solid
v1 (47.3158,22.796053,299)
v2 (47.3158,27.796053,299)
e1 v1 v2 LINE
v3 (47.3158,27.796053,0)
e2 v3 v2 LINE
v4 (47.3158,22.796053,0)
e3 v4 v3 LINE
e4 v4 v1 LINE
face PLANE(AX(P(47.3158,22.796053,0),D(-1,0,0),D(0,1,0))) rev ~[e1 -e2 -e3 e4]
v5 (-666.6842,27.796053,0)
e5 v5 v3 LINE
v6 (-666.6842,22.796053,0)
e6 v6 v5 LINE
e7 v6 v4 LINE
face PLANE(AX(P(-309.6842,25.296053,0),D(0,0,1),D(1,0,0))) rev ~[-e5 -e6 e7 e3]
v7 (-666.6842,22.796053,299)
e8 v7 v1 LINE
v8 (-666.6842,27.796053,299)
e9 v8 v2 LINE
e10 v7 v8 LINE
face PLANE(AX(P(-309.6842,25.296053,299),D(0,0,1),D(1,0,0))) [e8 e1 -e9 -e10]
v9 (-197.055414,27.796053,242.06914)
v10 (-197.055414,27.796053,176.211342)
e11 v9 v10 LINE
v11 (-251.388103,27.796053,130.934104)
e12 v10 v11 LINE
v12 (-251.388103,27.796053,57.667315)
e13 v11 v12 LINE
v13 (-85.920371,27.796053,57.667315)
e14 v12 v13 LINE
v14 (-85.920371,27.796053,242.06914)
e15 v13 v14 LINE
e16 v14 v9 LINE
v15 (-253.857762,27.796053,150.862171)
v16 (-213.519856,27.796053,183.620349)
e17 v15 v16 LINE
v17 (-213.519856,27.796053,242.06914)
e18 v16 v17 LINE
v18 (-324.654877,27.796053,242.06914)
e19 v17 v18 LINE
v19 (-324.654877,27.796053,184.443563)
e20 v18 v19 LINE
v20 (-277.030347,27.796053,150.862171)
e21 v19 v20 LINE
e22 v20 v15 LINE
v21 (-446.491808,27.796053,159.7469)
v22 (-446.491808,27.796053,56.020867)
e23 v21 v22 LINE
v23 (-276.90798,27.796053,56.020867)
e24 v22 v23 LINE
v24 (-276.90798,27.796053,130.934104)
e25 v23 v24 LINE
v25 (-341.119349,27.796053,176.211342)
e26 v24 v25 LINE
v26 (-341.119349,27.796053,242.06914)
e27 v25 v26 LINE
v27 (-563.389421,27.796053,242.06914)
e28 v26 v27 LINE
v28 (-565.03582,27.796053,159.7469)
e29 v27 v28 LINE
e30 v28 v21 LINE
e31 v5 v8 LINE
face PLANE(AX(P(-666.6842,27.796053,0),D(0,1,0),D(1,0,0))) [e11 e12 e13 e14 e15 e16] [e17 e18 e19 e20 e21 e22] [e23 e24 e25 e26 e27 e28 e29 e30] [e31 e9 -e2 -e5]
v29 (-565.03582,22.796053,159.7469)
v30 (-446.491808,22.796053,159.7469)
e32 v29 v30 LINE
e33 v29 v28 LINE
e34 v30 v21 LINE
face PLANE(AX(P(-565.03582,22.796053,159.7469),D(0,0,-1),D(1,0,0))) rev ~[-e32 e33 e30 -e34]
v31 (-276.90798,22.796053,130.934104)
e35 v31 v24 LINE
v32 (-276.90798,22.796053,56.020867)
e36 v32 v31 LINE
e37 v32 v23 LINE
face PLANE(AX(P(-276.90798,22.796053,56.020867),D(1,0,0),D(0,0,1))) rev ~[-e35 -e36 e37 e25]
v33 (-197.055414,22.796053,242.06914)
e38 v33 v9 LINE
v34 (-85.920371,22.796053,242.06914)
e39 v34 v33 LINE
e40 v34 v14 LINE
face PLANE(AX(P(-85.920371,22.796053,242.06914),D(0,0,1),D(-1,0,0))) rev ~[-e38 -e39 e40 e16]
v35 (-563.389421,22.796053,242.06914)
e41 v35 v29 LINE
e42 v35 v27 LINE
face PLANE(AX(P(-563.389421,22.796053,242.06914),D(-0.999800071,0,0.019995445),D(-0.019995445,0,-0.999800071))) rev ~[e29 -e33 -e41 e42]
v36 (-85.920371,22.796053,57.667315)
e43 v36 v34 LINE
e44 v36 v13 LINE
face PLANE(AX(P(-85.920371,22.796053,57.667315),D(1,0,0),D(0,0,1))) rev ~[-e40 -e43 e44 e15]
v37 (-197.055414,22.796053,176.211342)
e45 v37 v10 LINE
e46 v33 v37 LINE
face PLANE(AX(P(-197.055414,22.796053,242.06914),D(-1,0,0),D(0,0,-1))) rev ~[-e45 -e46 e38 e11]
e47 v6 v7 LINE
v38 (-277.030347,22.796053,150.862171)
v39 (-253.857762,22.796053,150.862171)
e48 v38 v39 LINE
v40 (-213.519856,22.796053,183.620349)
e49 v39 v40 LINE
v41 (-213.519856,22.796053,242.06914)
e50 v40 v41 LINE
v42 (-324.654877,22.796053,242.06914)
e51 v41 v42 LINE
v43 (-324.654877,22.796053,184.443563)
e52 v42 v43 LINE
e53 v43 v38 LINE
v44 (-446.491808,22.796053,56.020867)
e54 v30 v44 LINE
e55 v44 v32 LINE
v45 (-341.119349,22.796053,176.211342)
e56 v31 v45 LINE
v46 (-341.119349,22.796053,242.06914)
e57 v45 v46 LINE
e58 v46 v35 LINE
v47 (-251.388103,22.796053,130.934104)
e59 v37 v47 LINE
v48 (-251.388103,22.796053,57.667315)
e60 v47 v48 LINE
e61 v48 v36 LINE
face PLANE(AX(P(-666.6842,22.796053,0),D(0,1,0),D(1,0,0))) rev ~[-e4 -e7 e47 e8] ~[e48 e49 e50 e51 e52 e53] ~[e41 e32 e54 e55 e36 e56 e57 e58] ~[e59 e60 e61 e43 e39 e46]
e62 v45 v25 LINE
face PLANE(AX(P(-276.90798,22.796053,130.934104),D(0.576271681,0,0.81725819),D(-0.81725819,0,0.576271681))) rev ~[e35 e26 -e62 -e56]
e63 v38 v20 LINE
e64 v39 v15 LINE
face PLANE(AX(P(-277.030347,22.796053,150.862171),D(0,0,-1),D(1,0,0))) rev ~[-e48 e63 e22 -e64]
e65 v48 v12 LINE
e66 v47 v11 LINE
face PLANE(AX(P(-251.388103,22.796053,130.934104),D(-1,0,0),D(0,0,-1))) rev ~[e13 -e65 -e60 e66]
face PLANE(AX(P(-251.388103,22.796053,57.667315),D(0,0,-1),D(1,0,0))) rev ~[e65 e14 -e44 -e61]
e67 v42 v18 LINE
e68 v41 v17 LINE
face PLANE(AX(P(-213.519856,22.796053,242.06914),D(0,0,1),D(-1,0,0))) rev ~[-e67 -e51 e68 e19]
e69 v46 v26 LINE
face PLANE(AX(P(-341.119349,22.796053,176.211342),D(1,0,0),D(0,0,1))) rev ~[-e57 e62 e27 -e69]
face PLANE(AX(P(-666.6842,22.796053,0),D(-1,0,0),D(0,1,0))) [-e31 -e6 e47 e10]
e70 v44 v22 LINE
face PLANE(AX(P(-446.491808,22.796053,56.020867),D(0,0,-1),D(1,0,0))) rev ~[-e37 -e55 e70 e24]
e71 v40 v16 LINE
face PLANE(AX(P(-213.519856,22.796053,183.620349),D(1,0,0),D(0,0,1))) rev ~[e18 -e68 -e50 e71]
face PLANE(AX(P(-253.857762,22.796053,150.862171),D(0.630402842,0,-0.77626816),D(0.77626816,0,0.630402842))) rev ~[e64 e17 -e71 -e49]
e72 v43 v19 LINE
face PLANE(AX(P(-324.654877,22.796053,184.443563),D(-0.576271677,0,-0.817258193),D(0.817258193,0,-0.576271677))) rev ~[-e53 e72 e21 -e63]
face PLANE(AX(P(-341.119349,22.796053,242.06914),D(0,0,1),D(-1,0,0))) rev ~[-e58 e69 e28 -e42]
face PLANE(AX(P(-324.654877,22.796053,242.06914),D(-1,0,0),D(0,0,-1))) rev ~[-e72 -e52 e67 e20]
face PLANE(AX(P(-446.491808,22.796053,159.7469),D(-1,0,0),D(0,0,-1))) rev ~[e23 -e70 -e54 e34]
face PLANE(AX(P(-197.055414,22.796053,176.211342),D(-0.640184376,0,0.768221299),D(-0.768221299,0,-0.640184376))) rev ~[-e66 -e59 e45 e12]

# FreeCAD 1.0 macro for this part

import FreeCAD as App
import Part
import Sketcher


def add_polygon(sketch, points):
    """Adds a closed chain of lines whose ends are joined by coincident constraints."""
    first, n = sketch.GeometryCount, len(points)
    for a, b in zip(points, points[1:] + points[:1]):
        sketch.addGeometry(Part.LineSegment(App.Vector(*a, 0), App.Vector(*b, 0)), False)
    for i in range(n):
        sketch.addConstraint(Sketcher.Constraint("Coincident", first + i, 2, first + (i + 1) % n, 1))

doc = App.newDocument("Part")
params = doc.addObject("Spreadsheet::Sheet", "Params")
for row, (alias, value) in enumerate([
    ("sketch1_width", "714 mm"),
    ("sketch1_height", "5 mm"),
    ("pad1_length", "299 mm"),
    ("pocket1_length", "5 mm"),
], start=1):
    params.set(f"A{row}", alias)
    params.set(f"B{row}", "=" + value)
    params.setAlias(f"B{row}", alias)

body = doc.addObject("PartDesign::Body", "Body")

sketch1 = doc.addObject("Sketcher::SketchObject", "Sketch")
body.addObject(sketch1)
sketch1.AttachmentSupport = (doc.XY_Plane, [""])
sketch1.MapMode = "FlatFace"
add_polygon(sketch1, [(-666.6842, 27.796053), (-666.6842, 22.796053), (47.3158, 22.796053), (47.3158, 27.796053)])
sketch1.addConstraint(Sketcher.Constraint("Vertical", 0))
sketch1.addConstraint(Sketcher.Constraint("Horizontal", 1))
sketch1.addConstraint(Sketcher.Constraint("Vertical", 2))
sketch1.addConstraint(Sketcher.Constraint("Horizontal", 3))
sketch1.addConstraint(Sketcher.Constraint("DistanceX", 1, 1, 1, 2, 714.0))
sketch1.addConstraint(Sketcher.Constraint("DistanceY", 0, 2, 0, 1, 5.0))
sketch1.addConstraint(Sketcher.Constraint("DistanceX", 0, 2, -1, 1, 666.6842))
sketch1.addConstraint(Sketcher.Constraint("DistanceY", -1, 1, 0, 2, 22.796053))
sketch1.setExpression("Constraints[8]", "Params.sketch1_width")
sketch1.setExpression("Constraints[9]", "Params.sketch1_height")
pad1 = doc.addObject("PartDesign::Pad", "Pad")
body.addObject(pad1)
pad1.Profile = sketch1
pad1.setExpression("Length", "Params.pad1_length")

sketch2 = doc.addObject("Sketcher::SketchObject", "Sketch001")
body.addObject(sketch2)
sketch2.AttachmentSupport = (doc.XZ_Plane, [""])
sketch2.MapMode = "FlatFace"
sketch2.AttachmentOffset = App.Placement(App.Vector(0, 0, -22.796053), App.Rotation())
add_polygon(sketch2, [(-341.119349, 242.06914), (-563.389421, 242.06914), (-565.03582, 159.7469), (-446.491808, 159.7469), (-446.491808, 56.020867), (-276.90798, 56.020867), (-276.90798, 130.934104), (-341.119349, 176.211342)])
add_polygon(sketch2, [(-213.519856, 242.06914), (-324.654877, 242.06914), (-324.654877, 184.443563), (-277.030347, 150.862171), (-253.857762, 150.862171), (-213.519856, 183.620349)])
add_polygon(sketch2, [(-85.920371, 242.06914), (-197.055414, 242.06914), (-197.055414, 176.211342), (-251.388103, 130.934104), (-251.388103, 57.667315), (-85.920371, 57.667315)])
sketch2.addConstraint(Sketcher.Constraint("Horizontal", 0))
sketch2.addConstraint(Sketcher.Constraint("Horizontal", 2))
sketch2.addConstraint(Sketcher.Constraint("Vertical", 3))
sketch2.addConstraint(Sketcher.Constraint("Horizontal", 4))
sketch2.addConstraint(Sketcher.Constraint("Vertical", 5))
sketch2.addConstraint(Sketcher.Constraint("Vertical", 7))
sketch2.addConstraint(Sketcher.Constraint("Horizontal", 8))
sketch2.addConstraint(Sketcher.Constraint("Vertical", 9))
sketch2.addConstraint(Sketcher.Constraint("Horizontal", 11))
sketch2.addConstraint(Sketcher.Constraint("Vertical", 13))
sketch2.addConstraint(Sketcher.Constraint("Horizontal", 14))
sketch2.addConstraint(Sketcher.Constraint("Vertical", 15))
sketch2.addConstraint(Sketcher.Constraint("Vertical", 17))
sketch2.addConstraint(Sketcher.Constraint("Horizontal", 18))
sketch2.addConstraint(Sketcher.Constraint("Vertical", 19))
sketch2.addConstraint(Sketcher.Constraint("Parallel", 6, 10))
sketch2.addConstraint(Sketcher.Constraint("Horizontal", 7, 2, 8, 2))
sketch2.addConstraint(Sketcher.Constraint("Horizontal", 13, 2, 14, 2))
sketch2.addConstraint(Sketcher.Constraint("Horizontal", 6, 2, 15, 2))
sketch2.addConstraint(Sketcher.Constraint("Horizontal", 5, 2, 16, 2))
sketch2.addConstraint(Sketcher.Constraint("DistanceY", 7, 1, 7, 2, 65.857798))
sketch2.addConstraint(Sketcher.Constraint("DistanceX", 6, 2, 10, 2, 64.089002))
sketch2.addConstraint(Sketcher.Constraint("Distance", 1, 82.338702))
sketch2.addConstraint(Sketcher.Constraint("DistanceX", 0, 2, 0, 1, 222.270072))
sketch2.addConstraint(Sketcher.Constraint("DistanceX", 2, 1, 2, 2, 118.544012))
sketch2.addConstraint(Sketcher.Constraint("DistanceX", 8, 2, 8, 1, 111.135021))
sketch2.addConstraint(Sketcher.Constraint("DistanceY", 13, 1, 13, 2, 58.448791))
sketch2.addConstraint(Sketcher.Constraint("DistanceY", 17, 2, 17, 1, 73.266789))
sketch2.addConstraint(Sketcher.Constraint("DistanceY", -1, 1, 1, 2, 159.7469))
sketch2.addConstraint(Sketcher.Constraint("DistanceX", 1, 2, 0, 2, 1.646399))
sketch2.addConstraint(Sketcher.Constraint("Distance", 12, 51.963881))
sketch2.addConstraint(Sketcher.Constraint("Distance", 16, 70.725309))
sketch2.addConstraint(Sketcher.Constraint("DistanceX", 4, 1, 4, 2, 169.583828))
sketch2.addConstraint(Sketcher.Constraint("DistanceX", 11, 1, 11, 2, 23.172585))
sketch2.addConstraint(Sketcher.Constraint("DistanceX", 14, 2, 14, 1, 111.135043))
sketch2.addConstraint(Sketcher.Constraint("DistanceX", 18, 1, 18, 2, 165.467732))
sketch2.addConstraint(Sketcher.Constraint("DistanceY", 3, 2, 3, 1, 103.726033))
sketch2.addConstraint(Sketcher.Constraint("DistanceY", 9, 2, 9, 1, 57.625577))
sketch2.addConstraint(Sketcher.Constraint("DistanceX", 0, 2, -1, 1, 563.389421))
sketch2.addConstraint(Sketcher.Constraint("DistanceX", 18, 2, -1, 1, 85.920371))
pocket1 = doc.addObject("PartDesign::Pocket", "Pocket")
body.addObject(pocket1)
pocket1.Profile = sketch2
pocket1.setExpression("Length", "Params.pocket1_length")

doc.recompute()
